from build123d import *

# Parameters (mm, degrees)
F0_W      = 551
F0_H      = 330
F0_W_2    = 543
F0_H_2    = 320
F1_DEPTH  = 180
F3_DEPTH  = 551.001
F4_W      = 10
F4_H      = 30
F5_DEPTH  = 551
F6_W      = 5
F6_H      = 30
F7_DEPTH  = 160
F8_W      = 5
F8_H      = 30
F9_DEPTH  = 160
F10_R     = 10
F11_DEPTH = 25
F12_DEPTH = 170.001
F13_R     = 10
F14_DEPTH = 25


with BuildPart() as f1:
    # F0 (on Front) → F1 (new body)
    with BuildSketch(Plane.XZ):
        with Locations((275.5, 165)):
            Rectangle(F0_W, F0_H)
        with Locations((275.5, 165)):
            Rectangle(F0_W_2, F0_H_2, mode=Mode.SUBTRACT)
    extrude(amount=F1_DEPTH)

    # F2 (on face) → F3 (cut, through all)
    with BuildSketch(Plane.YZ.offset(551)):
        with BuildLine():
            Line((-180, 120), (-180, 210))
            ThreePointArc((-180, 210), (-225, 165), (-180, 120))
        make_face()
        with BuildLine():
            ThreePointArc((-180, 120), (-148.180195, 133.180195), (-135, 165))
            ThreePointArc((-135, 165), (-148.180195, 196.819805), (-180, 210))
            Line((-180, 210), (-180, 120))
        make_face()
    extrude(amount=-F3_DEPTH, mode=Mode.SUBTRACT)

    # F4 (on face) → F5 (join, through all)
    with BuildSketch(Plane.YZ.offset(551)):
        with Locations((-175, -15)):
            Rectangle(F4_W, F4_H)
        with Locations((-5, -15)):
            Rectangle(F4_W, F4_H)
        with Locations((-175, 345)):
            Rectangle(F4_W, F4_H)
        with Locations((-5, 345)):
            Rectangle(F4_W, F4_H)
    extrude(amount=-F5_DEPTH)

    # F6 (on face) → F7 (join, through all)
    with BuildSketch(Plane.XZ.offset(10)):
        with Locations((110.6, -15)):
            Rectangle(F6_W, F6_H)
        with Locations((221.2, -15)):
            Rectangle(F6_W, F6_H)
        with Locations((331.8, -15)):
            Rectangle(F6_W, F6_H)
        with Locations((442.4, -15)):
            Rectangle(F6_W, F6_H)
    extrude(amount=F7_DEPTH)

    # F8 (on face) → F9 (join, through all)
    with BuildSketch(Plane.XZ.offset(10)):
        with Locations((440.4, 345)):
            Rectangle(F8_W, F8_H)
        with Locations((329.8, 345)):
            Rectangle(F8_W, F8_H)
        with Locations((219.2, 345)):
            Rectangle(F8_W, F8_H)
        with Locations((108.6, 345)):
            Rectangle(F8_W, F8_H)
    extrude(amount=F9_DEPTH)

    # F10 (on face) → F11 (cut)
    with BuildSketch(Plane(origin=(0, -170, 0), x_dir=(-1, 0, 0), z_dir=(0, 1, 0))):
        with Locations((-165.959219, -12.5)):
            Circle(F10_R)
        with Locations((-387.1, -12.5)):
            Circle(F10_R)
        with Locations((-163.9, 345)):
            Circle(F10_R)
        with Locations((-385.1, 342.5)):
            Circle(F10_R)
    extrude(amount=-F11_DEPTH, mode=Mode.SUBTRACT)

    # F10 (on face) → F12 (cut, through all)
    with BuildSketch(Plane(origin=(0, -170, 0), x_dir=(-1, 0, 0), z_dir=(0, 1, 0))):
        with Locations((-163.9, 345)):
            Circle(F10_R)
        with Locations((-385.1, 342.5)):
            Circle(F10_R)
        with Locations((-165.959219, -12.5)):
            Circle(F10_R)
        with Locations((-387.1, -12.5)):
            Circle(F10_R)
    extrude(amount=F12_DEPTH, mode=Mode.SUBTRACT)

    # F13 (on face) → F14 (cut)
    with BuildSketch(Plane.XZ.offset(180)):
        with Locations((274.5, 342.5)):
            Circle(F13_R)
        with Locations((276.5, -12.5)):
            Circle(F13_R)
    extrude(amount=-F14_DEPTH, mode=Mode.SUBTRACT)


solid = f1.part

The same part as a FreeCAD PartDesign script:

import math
import FreeCAD as App
import Part
import Sketcher
Q = App.Units.Quantity


def add_polygon(sketch, points):
    """Adds a closed chain of lines whose ends are joined by coincident constraints."""
    first, n = sketch.GeometryCount, len(points)
    for a, b in zip(points, points[1:] + points[:1]):
        sketch.addGeometry(Part.LineSegment(App.Vector(*a, 0), App.Vector(*b, 0)), False)
    for i in range(n):
        sketch.addConstraint(Sketcher.Constraint("Coincident", first + i, 2, first + (i + 1) % n, 1))

doc = App.newDocument("Part")
params = doc.addObject("Spreadsheet::Sheet", "Params")
for row, (alias, value) in enumerate([
    ("sketch1_width", "551 mm"),
    ("sketch1_width2", "543 mm"),
    ("sketch1_height", "330 mm"),
    ("sketch1_height2", "320 mm"),
    ("pad1_length", "180 mm"),
    ("sketch2_radius", "45 mm"),
    ("sketch3_width", "10 mm"),
    ("sketch3_height", "30 mm"),
    ("sketch4_width", "5 mm"),
    ("sketch4_height", "30 mm"),
    ("sketch5_width", "5 mm"),
    ("sketch5_height", "30 mm"),
    ("sketch6_diameter", "20 mm"),
    ("pocket2_length", "25 mm"),
    ("sketch7_diameter", "20 mm"),
    ("sketch8_diameter", "20 mm"),
    ("pocket4_length", "25 mm"),
], start=1):
    params.set(f"A{row}", alias)
    params.set(f"B{row}", "=" + value)
    params.setAlias(f"B{row}", alias)

body = doc.addObject("PartDesign::Body", "Body")

# Sketch on XZ plane
sketch1 = doc.addObject("Sketcher::SketchObject", "Sketch")
body.addObject(sketch1)
sketch1.AttachmentSupport = (doc.XZ_Plane, [""])
sketch1.MapMode = "FlatFace"
add_polygon(sketch1, [(0, 330), (0, 0), (551, 0), (551, 330)])  # lines 0-3
add_polygon(sketch1, [(547, 5), (4, 5), (4, 325), (547, 325)])  # lines 4-7
sketch1.addConstraint(Sketcher.Constraint("Vertical", 0))
sketch1.addConstraint(Sketcher.Constraint("Horizontal", 1))
sketch1.addConstraint(Sketcher.Constraint("Vertical", 2))
sketch1.addConstraint(Sketcher.Constraint("Horizontal", 3))
sketch1.addConstraint(Sketcher.Constraint("Horizontal", 4))
sketch1.addConstraint(Sketcher.Constraint("Vertical", 5))
sketch1.addConstraint(Sketcher.Constraint("Horizontal", 6))
sketch1.addConstraint(Sketcher.Constraint("Vertical", 7))
sketch1.addConstraint(Sketcher.Constraint("Coincident", 0, 2, -1, 1))
sketch1.addConstraint(Sketcher.Constraint("DistanceX", 1, 1, 1, 2, Q("551 mm")))
sketch1.addConstraint(Sketcher.Constraint("DistanceX", 4, 2, 4, 1, Q("543 mm")))
sketch1.addConstraint(Sketcher.Constraint("DistanceY", 0, 2, 0, 1, Q("330 mm")))
sketch1.addConstraint(Sketcher.Constraint("DistanceY", 5, 1, 5, 2, Q("320 mm")))
sketch1.addConstraint(Sketcher.Constraint("DistanceX", -1, 1, 4, 2, Q("4 mm")))
sketch1.addConstraint(Sketcher.Constraint("DistanceY", -1, 1, 4, 2, Q("5 mm")))
sketch1.setExpression("Constraints[17]", "Params.sketch1_width")
sketch1.setExpression("Constraints[18]", "Params.sketch1_width2")
sketch1.setExpression("Constraints[19]", "Params.sketch1_height")
sketch1.setExpression("Constraints[20]", "Params.sketch1_height2")
pad1 = doc.addObject("PartDesign::Pad", "Pad")
body.addObject(pad1)
pad1.Profile = sketch1
pad1.setExpression("Length", "Params.pad1_length")

# Sketch on YZ plane
sketch2 = doc.addObject("Sketcher::SketchObject", "Sketch001")
body.addObject(sketch2)
sketch2.AttachmentSupport = (doc.YZ_Plane, [""])
sketch2.MapMode = "FlatFace"
sketch2.AttachmentOffset = App.Placement(App.Vector(0, 0, 551), App.Rotation())
sketch2.addGeometry(Part.ArcOfCircle(Part.Circle(App.Vector(-180, 165, 0), App.Vector(0, 0, 1), 45), math.radians(90), math.radians(270)), False)
sketch2.addGeometry(Part.ArcOfCircle(Part.Circle(App.Vector(-180, 165, 0), App.Vector(0, 0, 1), 45), math.radians(-90), math.radians(0)), False)
sketch2.addGeometry(Part.ArcOfCircle(Part.Circle(App.Vector(-180, 165, 0), App.Vector(0, 0, 1), 45), math.radians(0), math.radians(90)), False)
sketch2.addConstraint(Sketcher.Constraint("Tangent", 0, 2, 1, 1))
sketch2.addConstraint(Sketcher.Constraint("Tangent", 1, 2, 2, 1))
sketch2.addConstraint(Sketcher.Constraint("Tangent", 2, 2, 0, 1))
sketch2.addConstraint(Sketcher.Constraint("Horizontal", 2, 3, 1, 2))
sketch2.addConstraint(Sketcher.Constraint("Vertical", 2, 3, 0, 2))
sketch2.addConstraint(Sketcher.Constraint("Vertical", 0, 2, 2, 2))
sketch2.addConstraint(Sketcher.Constraint("Radius", 0, Q("45 mm")))
sketch2.addConstraint(Sketcher.Constraint("DistanceX", 0, 3, -1, 1, Q("180 mm")))
sketch2.addConstraint(Sketcher.Constraint("DistanceY", -1, 1, 0, 3, Q("165 mm")))
sketch2.setExpression("Constraints[6]", "Params.sketch2_radius")
pocket1 = doc.addObject("PartDesign::Pocket", "Pocket")
body.addObject(pocket1)
pocket1.Profile = sketch2
pocket1.Type = "ThroughAll"

# Sketch on YZ plane
sketch3 = doc.addObject("Sketcher::SketchObject", "Sketch002")
body.addObject(sketch3)
sketch3.AttachmentSupport = (doc.YZ_Plane, [""])
sketch3.MapMode = "FlatFace"
sketch3.AttachmentOffset = App.Placement(App.Vector(0, 0, 551), App.Rotation())
add_polygon(sketch3, [(-180, 0), (-180, -30), (-170, -30), (-170, 0)])  # lines 0-3
add_polygon(sketch3, [(-10, 0), (-10, -30), (0, -30), (0, 0)])  # lines 4-7
add_polygon(sketch3, [(-180, 360), (-180, 330), (-170, 330), (-170, 360)])  # lines 8-11
add_polygon(sketch3, [(-10, 360), (-10, 330), (0, 330), (0, 360)])  # lines 12-15
sketch3.addConstraint(Sketcher.Constraint("Vertical", 0))
sketch3.addConstraint(Sketcher.Constraint("Horizontal", 1))
sketch3.addConstraint(Sketcher.Constraint("Vertical", 2))
sketch3.addConstraint(Sketcher.Constraint("Horizontal", 3))
sketch3.addConstraint(Sketcher.Constraint("Vertical", 4))
sketch3.addConstraint(Sketcher.Constraint("Horizontal", 5))
sketch3.addConstraint(Sketcher.Constraint("Vertical", 6))
sketch3.addConstraint(Sketcher.Constraint("Horizontal", 7))
sketch3.addConstraint(Sketcher.Constraint("Vertical", 8))
sketch3.addConstraint(Sketcher.Constraint("Horizontal", 9))
sketch3.addConstraint(Sketcher.Constraint("Vertical", 10))
sketch3.addConstraint(Sketcher.Constraint("Horizontal", 11))
sketch3.addConstraint(Sketcher.Constraint("Vertical", 12))
sketch3.addConstraint(Sketcher.Constraint("Horizontal", 13))
sketch3.addConstraint(Sketcher.Constraint("Vertical", 14))
sketch3.addConstraint(Sketcher.Constraint("Horizontal", 15))
sketch3.addConstraint(Sketcher.Constraint("Coincident", 6, 2, -1, 1))
sketch3.addConstraint(Sketcher.Constraint("PointOnObject", 2, 2, -1))
sketch3.addConstraint(Sketcher.Constraint("PointOnObject", 13, 2, -2))
sketch3.addConstraint(Sketcher.Constraint("Horizontal", 1, 2, 4, 2))
sketch3.addConstraint(Sketcher.Constraint("Horizontal", 9, 2, 12, 2))
sketch3.addConstraint(Sketcher.Constraint("Horizontal", 11, 2, 14, 2))
sketch3.addConstraint(Sketcher.Constraint("Vertical", 3, 2, 8, 2))
sketch3.addConstraint(Sketcher.Constraint("Vertical", 2, 2, 9, 2))
sketch3.addConstraint(Sketcher.Constraint("Vertical", 7, 2, 12, 2))
sketch3.addConstraint(Sketcher.Constraint("Equal", 3, 5))
sketch3.addConstraint(Sketcher.Constraint("Equal", 6, 8))
sketch3.addConstraint(Sketcher.Constraint("DistanceX", 1, 1, 1, 2, Q("10 mm")))
sketch3.addConstraint(Sketcher.Constraint("DistanceY", 0, 2, 0, 1, Q("30 mm")))
sketch3.addConstraint(Sketcher.Constraint("DistanceX", 0, 2, -1, 1, Q("180 mm")))
sketch3.addConstraint(Sketcher.Constraint("DistanceY", -1, 1, 8, 2, Q("330 mm")))
sketch3.setExpression("Constraints[43]", "Params.sketch3_width")
sketch3.setExpression("Constraints[44]", "Params.sketch3_height")
pad2 = doc.addObject("PartDesign::Pad", "Pad001")
body.addObject(pad2)
pad2.Profile = sketch3
pad2.Type = "UpToLast"
pad2.Reversed = True

# Sketch on XZ plane
sketch4 = doc.addObject("Sketcher::SketchObject", "Sketch003")
body.addObject(sketch4)
sketch4.AttachmentSupport = (doc.XZ_Plane, [""])
sketch4.MapMode = "FlatFace"
sketch4.AttachmentOffset = App.Placement(App.Vector(0, 0, 10), App.Rotation())
add_polygon(sketch4, [(108, 0), (108, -30), (113, -30), (113, 0)])  # lines 0-3
add_polygon(sketch4, [(219, 0), (219, -30), (224, -30), (224, 0)])  # lines 4-7
add_polygon(sketch4, [(329, 0), (329, -30), (334, -30), (334, 0)])  # lines 8-11
add_polygon(sketch4, [(440, 0), (440, -30), (445, -30), (445, 0)])  # lines 12-15
sketch4.addConstraint(Sketcher.Constraint("Vertical", 0))
sketch4.addConstraint(Sketcher.Constraint("Horizontal", 1))
sketch4.addConstraint(Sketcher.Constraint("Vertical", 2))
sketch4.addConstraint(Sketcher.Constraint("Horizontal", 3))
sketch4.addConstraint(Sketcher.Constraint("Vertical", 4))
sketch4.addConstraint(Sketcher.Constraint("Horizontal", 5))
sketch4.addConstraint(Sketcher.Constraint("Vertical", 6))
sketch4.addConstraint(Sketcher.Constraint("Horizontal", 7))
sketch4.addConstraint(Sketcher.Constraint("Vertical", 8))
sketch4.addConstraint(Sketcher.Constraint("Horizontal", 9))
sketch4.addConstraint(Sketcher.Constraint("Vertical", 10))
sketch4.addConstraint(Sketcher.Constraint("Horizontal", 11))
sketch4.addConstraint(Sketcher.Constraint("Vertical", 12))
sketch4.addConstraint(Sketcher.Constraint("Horizontal", 13))
sketch4.addConstraint(Sketcher.Constraint("Vertical", 14))
sketch4.addConstraint(Sketcher.Constraint("Horizontal", 15))
sketch4.addConstraint(Sketcher.Constraint("PointOnObject", 2, 2, -1))
sketch4.addConstraint(Sketcher.Constraint("PointOnObject", 6, 2, -1))
sketch4.addConstraint(Sketcher.Constraint("PointOnObject", 10, 2, -1))
sketch4.addConstraint(Sketcher.Constraint("PointOnObject", 14, 2, -1))
sketch4.addConstraint(Sketcher.Constraint("Horizontal", 1, 2, 4, 2))
sketch4.addConstraint(Sketcher.Constraint("Horizontal", 5, 2, 8, 2))
sketch4.addConstraint(Sketcher.Constraint("Horizontal", 9, 2, 12, 2))
sketch4.addConstraint(Sketcher.Constraint("Equal", 3, 5))
sketch4.addConstraint(Sketcher.Constraint("Equal", 7, 9))
sketch4.addConstraint(Sketcher.Constraint("Equal", 11, 13))
sketch4.addConstraint(Sketcher.Constraint("DistanceX", 1, 1, 1, 2, Q("5 mm")))
sketch4.addConstraint(Sketcher.Constraint("DistanceY", 0, 2, 0, 1, Q("30 mm")))
sketch4.addConstraint(Sketcher.Constraint("DistanceX", -1, 1, 0, 2, Q("108.1 mm")))
sketch4.addConstraint(Sketcher.Constraint("DistanceX", -1, 1, 4, 2, Q("218.7 mm")))
sketch4.addConstraint(Sketcher.Constraint("DistanceX", -1, 1, 8, 2, Q("329.3 mm")))
sketch4.addConstraint(Sketcher.Constraint("DistanceX", -1, 1, 12, 2, Q("439.9 mm")))
sketch4.setExpression("Constraints[42]", "Params.sketch4_width")
sketch4.setExpression("Constraints[43]", "Params.sketch4_height")
pad3 = doc.addObject("PartDesign::Pad", "Pad002")
body.addObject(pad3)
pad3.Profile = sketch4
pad3.Type = "UpToLast"

# Sketch on XZ plane
sketch5 = doc.addObject("Sketcher::SketchObject", "Sketch004")
body.addObject(sketch5)
sketch5.AttachmentSupport = (doc.XZ_Plane, [""])
sketch5.MapMode = "FlatFace"
sketch5.AttachmentOffset = App.Placement(App.Vector(0, 0, 10), App.Rotation())
add_polygon(sketch5, [(438, 360), (438, 330), (443, 330), (443, 360)])  # lines 0-3
add_polygon(sketch5, [(327, 360), (327, 330), (332, 330), (332, 360)])  # lines 4-7
add_polygon(sketch5, [(217, 360), (217, 330), (222, 330), (222, 360)])  # lines 8-11
add_polygon(sketch5, [(106, 360), (106, 330), (111, 330), (111, 360)])  # lines 12-15
sketch5.addConstraint(Sketcher.Constraint("Vertical", 0))
sketch5.addConstraint(Sketcher.Constraint("Horizontal", 1))
sketch5.addConstraint(Sketcher.Constraint("Vertical", 2))
sketch5.addConstraint(Sketcher.Constraint("Horizontal", 3))
sketch5.addConstraint(Sketcher.Constraint("Vertical", 4))
sketch5.addConstraint(Sketcher.Constraint("Horizontal", 5))
sketch5.addConstraint(Sketcher.Constraint("Vertical", 6))
sketch5.addConstraint(Sketcher.Constraint("Horizontal", 7))
sketch5.addConstraint(Sketcher.Constraint("Vertical", 8))
sketch5.addConstraint(Sketcher.Constraint("Horizontal", 9))
sketch5.addConstraint(Sketcher.Constraint("Vertical", 10))
sketch5.addConstraint(Sketcher.Constraint("Horizontal", 11))
sketch5.addConstraint(Sketcher.Constraint("Vertical", 12))
sketch5.addConstraint(Sketcher.Constraint("Horizontal", 13))
sketch5.addConstraint(Sketcher.Constraint("Vertical", 14))
sketch5.addConstraint(Sketcher.Constraint("Horizontal", 15))
sketch5.addConstraint(Sketcher.Constraint("Horizontal", 1, 2, 4, 2))
sketch5.addConstraint(Sketcher.Constraint("Horizontal", 3, 2, 6, 2))
sketch5.addConstraint(Sketcher.Constraint("Horizontal", 5, 2, 8, 2))
sketch5.addConstraint(Sketcher.Constraint("Horizontal", 7, 2, 10, 2))
sketch5.addConstraint(Sketcher.Constraint("Horizontal", 9, 2, 12, 2))
sketch5.addConstraint(Sketcher.Constraint("Horizontal", 11, 2, 14, 2))
sketch5.addConstraint(Sketcher.Constraint("Equal", 3, 5))
sketch5.addConstraint(Sketcher.Constraint("Equal", 7, 9))
sketch5.addConstraint(Sketcher.Constraint("Equal", 11, 13))
sketch5.addConstraint(Sketcher.Constraint("DistanceX", 1, 1, 1, 2, Q("5 mm")))
sketch5.addConstraint(Sketcher.Constraint("DistanceY", 0, 2, 0, 1, Q("30 mm")))
sketch5.addConstraint(Sketcher.Constraint("DistanceY", -1, 1, 0, 2, Q("330 mm")))
sketch5.addConstraint(Sketcher.Constraint("DistanceX", -1, 1, 0, 2, Q("437.9 mm")))
sketch5.addConstraint(Sketcher.Constraint("DistanceX", -1, 1, 4, 2, Q("327.3 mm")))
sketch5.addConstraint(Sketcher.Constraint("DistanceX", -1, 1, 8, 2, Q("216.7 mm")))
sketch5.addConstraint(Sketcher.Constraint("DistanceX", -1, 1, 12, 2, Q("106.1 mm")))
sketch5.setExpression("Constraints[41]", "Params.sketch5_width")
sketch5.setExpression("Constraints[42]", "Params.sketch5_height")
pad4 = doc.addObject("PartDesign::Pad", "Pad003")
body.addObject(pad4)
pad4.Profile = sketch5
pad4.Type = "UpToLast"

# Sketch on XZ plane
sketch6 = doc.addObject("Sketcher::SketchObject", "Sketch005")
body.addObject(sketch6)
sketch6.AttachmentSupport = (doc.XZ_Plane, [""])
sketch6.MapMode = "FlatFace"
sketch6.AttachmentOffset = App.Placement(App.Vector(0, 0, 170), App.Rotation())
sketch6.addGeometry(Part.Circle(App.Vector(166, -12, 0), App.Vector(0, 0, 1), 10), False)
sketch6.addGeometry(Part.Circle(App.Vector(387, -12, 0), App.Vector(0, 0, 1), 10), False)
sketch6.addGeometry(Part.Circle(App.Vector(164, 345, 0), App.Vector(0, 0, 1), 10), False)
sketch6.addGeometry(Part.Circle(App.Vector(385, 342, 0), App.Vector(0, 0, 1), 10), False)
sketch6.addConstraint(Sketcher.Constraint("Equal", 0, 1))
sketch6.addConstraint(Sketcher.Constraint("Equal", 1, 2))
sketch6.addConstraint(Sketcher.Constraint("Equal", 2, 3))
sketch6.addConstraint(Sketcher.Constraint("Horizontal", 0, 3, 1, 3))
sketch6.addConstraint(Sketcher.Constraint("Diameter", 0, Q("20 mm")))
sketch6.addConstraint(Sketcher.Constraint("DistanceY", -1, 1, 2, 3, Q("345 mm")))
sketch6.addConstraint(Sketcher.Constraint("DistanceX", 3, 3, 1, 3, Q("2 mm")))
sketch6.addConstraint(Sketcher.Constraint("DistanceY", 1, 3, 3, 3, Q("355 mm")))
sketch6.addConstraint(Sketcher.Constraint("DistanceY", 0, 3, -1, 1, Q("12.5 mm")))
sketch6.addConstraint(Sketcher.Constraint("DistanceX", -1, 1, 1, 3, Q("387.1 mm")))
sketch6.addConstraint(Sketcher.Constraint("DistanceX", -1, 1, 2, 3, Q("163.9 mm")))
sketch6.addConstraint(Sketcher.Constraint("DistanceX", -1, 1, 0, 3, Q("165.959219 mm")))
sketch6.setExpression("Constraints[4]", "Params.sketch6_diameter")
pocket2 = doc.addObject("PartDesign::Pocket", "Pocket001")
body.addObject(pocket2)
pocket2.Profile = sketch6
pocket2.setExpression("Length", "Params.pocket2_length")
pocket2.Reversed = True

# Sketch on XZ plane
sketch7 = doc.addObject("Sketcher::SketchObject", "Sketch006")
body.addObject(sketch7)
sketch7.AttachmentSupport = (doc.XZ_Plane, [""])
sketch7.MapMode = "FlatFace"
sketch7.AttachmentOffset = App.Placement(App.Vector(0, 0, 170), App.Rotation())
sketch7.addGeometry(Part.Circle(App.Vector(164, 345, 0), App.Vector(0, 0, 1), 10), False)
sketch7.addGeometry(Part.Circle(App.Vector(385, 342, 0), App.Vector(0, 0, 1), 10), False)
sketch7.addGeometry(Part.Circle(App.Vector(166, -12, 0), App.Vector(0, 0, 1), 10), False)
sketch7.addGeometry(Part.Circle(App.Vector(387, -12, 0), App.Vector(0, 0, 1), 10), False)
sketch7.addConstraint(Sketcher.Constraint("Equal", 0, 1))
sketch7.addConstraint(Sketcher.Constraint("Equal", 1, 2))
sketch7.addConstraint(Sketcher.Constraint("Equal", 2, 3))
sketch7.addConstraint(Sketcher.Constraint("Horizontal", 2, 3, 3, 3))
sketch7.addConstraint(Sketcher.Constraint("Diameter", 0, Q("20 mm")))
sketch7.addConstraint(Sketcher.Constraint("DistanceY", -1, 1, 0, 3, Q("345 mm")))
sketch7.addConstraint(Sketcher.Constraint("DistanceY", 2, 3, 1, 3, Q("355 mm")))
sketch7.addConstraint(Sketcher.Constraint("DistanceX", 1, 3, 3, 3, Q("2 mm")))
sketch7.addConstraint(Sketcher.Constraint("DistanceX", -1, 1, 0, 3, Q("163.9 mm")))
sketch7.addConstraint(Sketcher.Constraint("DistanceX", -1, 1, 1, 3, Q("385.1 mm")))
sketch7.addConstraint(Sketcher.Constraint("DistanceY", -1, 1, 1, 3, Q("342.5 mm")))
sketch7.addConstraint(Sketcher.Constraint("DistanceX", -1, 1, 2, 3, Q("165.959219 mm")))
sketch7.setExpression("Constraints[4]", "Params.sketch7_diameter")
pocket3 = doc.addObject("PartDesign::Pocket", "Pocket002")
body.addObject(pocket3)
pocket3.Profile = sketch7
pocket3.Type = "ThroughAll"

# Sketch on XZ plane
sketch8 = doc.addObject("Sketcher::SketchObject", "Sketch007")
body.addObject(sketch8)
sketch8.AttachmentSupport = (doc.XZ_Plane, [""])
sketch8.MapMode = "FlatFace"
sketch8.AttachmentOffset = App.Placement(App.Vector(0, 0, 180), App.Rotation())
sketch8.addGeometry(Part.Circle(App.Vector(274, 342, 0), App.Vector(0, 0, 1), 10), False)
sketch8.addGeometry(Part.Circle(App.Vector(276, -12, 0), App.Vector(0, 0, 1), 10), False)
sketch8.addConstraint(Sketcher.Constraint("Equal", 0, 1))
sketch8.addConstraint(Sketcher.Constraint("Diameter", 0, Q("20 mm")))
sketch8.addConstraint(Sketcher.Constraint("DistanceX", 0, 3, 1, 3, Q("2 mm")))
sketch8.addConstraint(Sketcher.Constraint("DistanceY", 1, 3, 0, 3, Q("355 mm")))
sketch8.addConstraint(Sketcher.Constraint("DistanceX", -1, 1, 0, 3, Q("274.5 mm")))
sketch8.addConstraint(Sketcher.Constraint("DistanceY", -1, 1, 0, 3, Q("342.5 mm")))
sketch8.setExpression("Constraints[1]", "Params.sketch8_diameter")
pocket4 = doc.addObject("PartDesign::Pocket", "Pocket003")
body.addObject(pocket4)
pocket4.Profile = sketch8
pocket4.setExpression("Length", "Params.pocket4_length")

doc.recompute()
